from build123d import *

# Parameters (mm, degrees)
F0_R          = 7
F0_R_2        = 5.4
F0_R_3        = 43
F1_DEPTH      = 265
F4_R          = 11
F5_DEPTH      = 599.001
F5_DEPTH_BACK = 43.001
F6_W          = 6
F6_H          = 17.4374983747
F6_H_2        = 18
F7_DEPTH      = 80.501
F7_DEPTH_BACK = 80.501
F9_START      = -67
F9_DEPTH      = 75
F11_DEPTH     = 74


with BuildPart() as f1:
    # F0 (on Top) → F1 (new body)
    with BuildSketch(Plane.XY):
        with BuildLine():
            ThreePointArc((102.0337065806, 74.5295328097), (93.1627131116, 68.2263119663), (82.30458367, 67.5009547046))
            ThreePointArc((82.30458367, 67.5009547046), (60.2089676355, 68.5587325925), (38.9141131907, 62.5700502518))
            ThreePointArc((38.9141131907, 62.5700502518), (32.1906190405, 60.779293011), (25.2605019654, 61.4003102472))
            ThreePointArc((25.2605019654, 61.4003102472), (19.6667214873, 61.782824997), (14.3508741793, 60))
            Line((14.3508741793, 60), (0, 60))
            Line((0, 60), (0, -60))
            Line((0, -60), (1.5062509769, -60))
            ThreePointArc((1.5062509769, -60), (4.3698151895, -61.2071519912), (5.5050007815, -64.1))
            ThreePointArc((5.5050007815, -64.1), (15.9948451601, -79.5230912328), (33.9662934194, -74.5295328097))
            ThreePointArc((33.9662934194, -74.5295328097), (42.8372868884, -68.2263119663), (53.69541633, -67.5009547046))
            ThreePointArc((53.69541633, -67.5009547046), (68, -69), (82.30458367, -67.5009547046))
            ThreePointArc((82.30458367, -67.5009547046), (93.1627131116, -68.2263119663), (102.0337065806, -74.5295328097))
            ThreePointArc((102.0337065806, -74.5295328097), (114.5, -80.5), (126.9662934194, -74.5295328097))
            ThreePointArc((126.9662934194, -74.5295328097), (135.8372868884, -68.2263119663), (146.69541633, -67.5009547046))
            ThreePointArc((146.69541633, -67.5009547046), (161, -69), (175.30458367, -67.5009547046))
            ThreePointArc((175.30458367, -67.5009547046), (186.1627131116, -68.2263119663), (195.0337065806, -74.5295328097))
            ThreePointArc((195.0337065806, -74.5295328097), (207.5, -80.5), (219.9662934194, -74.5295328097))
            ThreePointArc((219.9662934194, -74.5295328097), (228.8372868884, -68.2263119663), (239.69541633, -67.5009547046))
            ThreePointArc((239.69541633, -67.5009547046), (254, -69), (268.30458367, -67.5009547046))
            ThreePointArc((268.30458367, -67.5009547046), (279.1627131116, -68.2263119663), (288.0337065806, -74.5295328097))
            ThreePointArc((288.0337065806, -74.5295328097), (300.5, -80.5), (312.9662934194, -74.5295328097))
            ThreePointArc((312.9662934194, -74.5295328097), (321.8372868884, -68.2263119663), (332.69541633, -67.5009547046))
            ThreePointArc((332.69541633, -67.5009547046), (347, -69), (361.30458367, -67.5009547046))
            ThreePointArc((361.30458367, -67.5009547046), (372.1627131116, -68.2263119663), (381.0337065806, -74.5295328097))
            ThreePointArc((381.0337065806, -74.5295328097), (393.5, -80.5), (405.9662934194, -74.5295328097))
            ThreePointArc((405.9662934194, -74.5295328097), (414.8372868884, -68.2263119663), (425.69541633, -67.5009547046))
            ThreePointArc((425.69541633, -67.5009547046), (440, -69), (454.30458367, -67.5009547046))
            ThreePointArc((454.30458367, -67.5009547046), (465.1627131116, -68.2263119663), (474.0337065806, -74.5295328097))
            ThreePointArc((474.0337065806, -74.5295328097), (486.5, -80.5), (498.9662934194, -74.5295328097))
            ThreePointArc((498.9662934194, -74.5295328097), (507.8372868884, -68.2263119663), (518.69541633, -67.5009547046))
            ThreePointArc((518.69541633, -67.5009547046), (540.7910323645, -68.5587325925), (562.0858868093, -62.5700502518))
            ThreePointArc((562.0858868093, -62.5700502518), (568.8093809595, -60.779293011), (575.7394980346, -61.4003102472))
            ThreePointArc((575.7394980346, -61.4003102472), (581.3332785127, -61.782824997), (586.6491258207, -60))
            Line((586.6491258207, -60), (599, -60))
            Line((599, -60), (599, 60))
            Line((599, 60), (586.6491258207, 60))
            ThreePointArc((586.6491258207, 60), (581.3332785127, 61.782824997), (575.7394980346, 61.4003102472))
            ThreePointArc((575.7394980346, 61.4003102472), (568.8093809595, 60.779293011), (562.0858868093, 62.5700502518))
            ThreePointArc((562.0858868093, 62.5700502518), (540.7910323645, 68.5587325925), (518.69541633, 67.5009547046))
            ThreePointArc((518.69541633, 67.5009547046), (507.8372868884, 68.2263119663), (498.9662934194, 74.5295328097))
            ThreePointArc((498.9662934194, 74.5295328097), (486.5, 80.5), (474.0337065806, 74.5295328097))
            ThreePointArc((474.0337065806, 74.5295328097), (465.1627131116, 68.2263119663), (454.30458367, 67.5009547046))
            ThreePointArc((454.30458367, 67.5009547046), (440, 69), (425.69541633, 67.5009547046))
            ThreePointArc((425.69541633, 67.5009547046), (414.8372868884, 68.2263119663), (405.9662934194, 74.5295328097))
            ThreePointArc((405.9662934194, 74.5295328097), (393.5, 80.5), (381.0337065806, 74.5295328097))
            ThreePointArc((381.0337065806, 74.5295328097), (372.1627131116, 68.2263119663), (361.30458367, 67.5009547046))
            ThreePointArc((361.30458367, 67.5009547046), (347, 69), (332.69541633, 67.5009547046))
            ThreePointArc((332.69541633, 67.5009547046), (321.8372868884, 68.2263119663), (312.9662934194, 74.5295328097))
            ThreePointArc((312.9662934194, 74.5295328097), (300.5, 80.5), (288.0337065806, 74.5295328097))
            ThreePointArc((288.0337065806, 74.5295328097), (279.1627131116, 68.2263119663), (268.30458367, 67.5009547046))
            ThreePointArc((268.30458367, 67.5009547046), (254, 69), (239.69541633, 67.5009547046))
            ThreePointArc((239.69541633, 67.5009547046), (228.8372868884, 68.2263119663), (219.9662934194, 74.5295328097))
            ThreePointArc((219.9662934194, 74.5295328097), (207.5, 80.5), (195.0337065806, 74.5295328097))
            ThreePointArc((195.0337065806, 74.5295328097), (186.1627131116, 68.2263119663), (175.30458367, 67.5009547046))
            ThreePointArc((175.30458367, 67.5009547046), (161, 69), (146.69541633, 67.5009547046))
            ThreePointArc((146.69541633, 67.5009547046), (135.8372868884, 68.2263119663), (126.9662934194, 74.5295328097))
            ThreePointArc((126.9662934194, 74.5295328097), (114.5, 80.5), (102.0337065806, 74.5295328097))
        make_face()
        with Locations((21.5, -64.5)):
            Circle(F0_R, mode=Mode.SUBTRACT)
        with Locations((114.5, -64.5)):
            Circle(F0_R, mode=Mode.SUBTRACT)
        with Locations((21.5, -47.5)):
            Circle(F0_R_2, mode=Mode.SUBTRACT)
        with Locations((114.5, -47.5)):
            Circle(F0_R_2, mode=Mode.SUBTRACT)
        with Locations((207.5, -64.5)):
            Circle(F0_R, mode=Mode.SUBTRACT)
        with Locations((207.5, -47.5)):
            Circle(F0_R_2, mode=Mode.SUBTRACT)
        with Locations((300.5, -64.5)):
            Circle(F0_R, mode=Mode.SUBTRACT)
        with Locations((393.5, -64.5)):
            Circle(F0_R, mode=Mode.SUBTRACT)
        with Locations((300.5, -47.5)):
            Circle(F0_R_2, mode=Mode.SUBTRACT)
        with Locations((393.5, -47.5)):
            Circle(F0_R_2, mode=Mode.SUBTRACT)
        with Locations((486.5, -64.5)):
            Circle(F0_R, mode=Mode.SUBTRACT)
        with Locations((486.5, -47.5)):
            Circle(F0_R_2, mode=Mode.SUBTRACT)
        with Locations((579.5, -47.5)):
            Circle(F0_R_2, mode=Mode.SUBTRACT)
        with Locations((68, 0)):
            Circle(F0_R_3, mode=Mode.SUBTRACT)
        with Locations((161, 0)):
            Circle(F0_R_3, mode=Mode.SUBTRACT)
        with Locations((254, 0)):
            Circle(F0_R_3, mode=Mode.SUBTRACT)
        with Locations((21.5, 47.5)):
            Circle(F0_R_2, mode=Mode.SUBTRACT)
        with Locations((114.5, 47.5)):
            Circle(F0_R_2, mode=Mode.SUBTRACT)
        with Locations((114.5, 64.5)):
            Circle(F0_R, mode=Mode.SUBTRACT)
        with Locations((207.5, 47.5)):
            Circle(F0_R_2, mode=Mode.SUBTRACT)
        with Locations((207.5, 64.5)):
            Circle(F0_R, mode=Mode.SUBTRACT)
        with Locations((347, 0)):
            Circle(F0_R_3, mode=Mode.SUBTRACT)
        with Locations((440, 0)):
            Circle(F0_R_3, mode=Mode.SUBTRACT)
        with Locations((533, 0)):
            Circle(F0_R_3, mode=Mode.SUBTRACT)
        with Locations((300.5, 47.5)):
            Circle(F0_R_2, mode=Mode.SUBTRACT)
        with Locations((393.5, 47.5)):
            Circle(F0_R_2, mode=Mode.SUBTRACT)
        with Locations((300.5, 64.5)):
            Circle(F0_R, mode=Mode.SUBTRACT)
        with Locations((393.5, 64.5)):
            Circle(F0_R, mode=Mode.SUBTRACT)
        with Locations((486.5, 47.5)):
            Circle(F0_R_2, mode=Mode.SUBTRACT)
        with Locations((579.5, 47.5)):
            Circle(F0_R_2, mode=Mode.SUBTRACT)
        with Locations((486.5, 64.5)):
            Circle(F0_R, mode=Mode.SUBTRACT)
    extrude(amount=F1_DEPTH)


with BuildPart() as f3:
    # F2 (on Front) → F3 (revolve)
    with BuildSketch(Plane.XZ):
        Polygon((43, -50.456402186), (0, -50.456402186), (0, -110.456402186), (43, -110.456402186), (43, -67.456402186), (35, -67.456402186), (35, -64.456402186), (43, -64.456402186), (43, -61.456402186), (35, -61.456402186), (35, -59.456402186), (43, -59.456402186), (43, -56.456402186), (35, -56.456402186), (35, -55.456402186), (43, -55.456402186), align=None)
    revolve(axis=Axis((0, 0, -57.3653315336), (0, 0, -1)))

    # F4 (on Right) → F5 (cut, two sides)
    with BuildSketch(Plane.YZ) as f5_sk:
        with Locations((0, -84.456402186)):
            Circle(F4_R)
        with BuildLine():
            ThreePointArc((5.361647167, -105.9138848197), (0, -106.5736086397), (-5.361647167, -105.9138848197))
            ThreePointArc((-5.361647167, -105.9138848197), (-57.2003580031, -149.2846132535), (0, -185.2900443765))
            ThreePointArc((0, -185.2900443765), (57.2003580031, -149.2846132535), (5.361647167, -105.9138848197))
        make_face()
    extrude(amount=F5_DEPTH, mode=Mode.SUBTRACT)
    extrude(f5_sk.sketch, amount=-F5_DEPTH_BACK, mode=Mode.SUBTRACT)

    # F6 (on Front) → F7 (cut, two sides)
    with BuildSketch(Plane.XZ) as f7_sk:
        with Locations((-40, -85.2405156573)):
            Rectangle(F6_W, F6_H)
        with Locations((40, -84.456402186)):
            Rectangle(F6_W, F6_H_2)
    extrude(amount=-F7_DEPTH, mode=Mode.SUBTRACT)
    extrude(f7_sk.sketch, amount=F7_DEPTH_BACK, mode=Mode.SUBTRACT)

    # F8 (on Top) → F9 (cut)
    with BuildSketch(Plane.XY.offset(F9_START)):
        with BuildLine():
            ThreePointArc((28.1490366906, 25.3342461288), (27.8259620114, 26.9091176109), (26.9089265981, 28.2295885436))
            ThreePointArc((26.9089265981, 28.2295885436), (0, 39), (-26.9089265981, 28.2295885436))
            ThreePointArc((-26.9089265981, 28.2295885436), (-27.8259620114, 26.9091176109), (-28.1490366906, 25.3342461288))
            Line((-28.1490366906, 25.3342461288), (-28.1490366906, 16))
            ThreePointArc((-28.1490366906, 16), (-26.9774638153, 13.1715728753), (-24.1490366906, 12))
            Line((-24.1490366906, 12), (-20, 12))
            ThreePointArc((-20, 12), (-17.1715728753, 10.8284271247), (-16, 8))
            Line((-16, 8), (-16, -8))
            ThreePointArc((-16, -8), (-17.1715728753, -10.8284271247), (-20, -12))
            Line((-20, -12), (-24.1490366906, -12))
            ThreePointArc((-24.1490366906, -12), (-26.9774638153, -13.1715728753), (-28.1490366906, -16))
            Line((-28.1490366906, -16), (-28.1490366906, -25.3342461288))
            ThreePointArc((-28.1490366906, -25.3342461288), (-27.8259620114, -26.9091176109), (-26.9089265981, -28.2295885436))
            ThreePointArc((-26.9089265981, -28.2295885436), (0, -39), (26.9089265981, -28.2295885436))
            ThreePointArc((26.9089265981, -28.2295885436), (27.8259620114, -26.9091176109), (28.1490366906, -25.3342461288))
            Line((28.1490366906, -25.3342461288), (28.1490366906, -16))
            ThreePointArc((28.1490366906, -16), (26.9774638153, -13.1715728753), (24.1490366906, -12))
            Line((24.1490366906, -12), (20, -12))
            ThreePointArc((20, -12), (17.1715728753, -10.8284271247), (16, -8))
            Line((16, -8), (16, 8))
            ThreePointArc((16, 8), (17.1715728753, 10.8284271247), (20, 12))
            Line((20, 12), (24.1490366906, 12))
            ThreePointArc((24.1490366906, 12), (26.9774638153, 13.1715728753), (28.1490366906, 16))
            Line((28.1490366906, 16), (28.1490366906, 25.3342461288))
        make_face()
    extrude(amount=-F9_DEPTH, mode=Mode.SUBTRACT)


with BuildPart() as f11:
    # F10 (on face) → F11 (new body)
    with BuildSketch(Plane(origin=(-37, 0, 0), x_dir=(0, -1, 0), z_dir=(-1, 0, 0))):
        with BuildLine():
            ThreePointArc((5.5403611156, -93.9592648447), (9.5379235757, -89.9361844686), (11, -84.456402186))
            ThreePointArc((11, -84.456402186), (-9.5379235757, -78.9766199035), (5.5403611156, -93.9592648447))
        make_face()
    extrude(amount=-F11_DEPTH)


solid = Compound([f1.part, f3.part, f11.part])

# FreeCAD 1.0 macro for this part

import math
import FreeCAD as App
import Part
import Sketcher
from FreeCAD import Vector
Q = App.Units.Quantity


def add_polygon(sketch, points):
    """Adds a closed chain of lines whose ends are joined by coincident constraints."""
    first, n = sketch.GeometryCount, len(points)
    for a, b in zip(points, points[1:] + points[:1]):
        sketch.addGeometry(Part.LineSegment(App.Vector(*a, 0), App.Vector(*b, 0)), False)
    for i in range(n):
        sketch.addConstraint(Sketcher.Constraint("Coincident", first + i, 2, first + (i + 1) % n, 1))

doc = App.newDocument("Part")
body = doc.addObject("PartDesign::Body", "Body")

# Sketch on XY plane
sketch1 = body.newObject("Sketcher::SketchObject", "Sketch")
sketch1.AttachmentSupport = (doc.getObject("XY_Plane"), [""])
sketch1.MapMode = "FlatFace"
sketch1.addGeometry([
    Part.ArcOfCircle(Part.Circle(Vector(86.5, 87.1, 0), Vector(0, 0, 1), 20), math.radians(-102), math.radians(-39)),  # 0
    Part.ArcOfCircle(Part.Circle(Vector(68, 0, 0), Vector(0, 0, 1), 69), math.radians(78), math.radians(115)),  # 1
    Part.ArcOfCircle(Part.Circle(Vector(30.5, 80.7, 0), Vector(0, 0, 1), 20), math.radians(-105), math.radians(-65)),  # 2
    Part.ArcOfCircle(Part.Circle(Vector(21.5, 47.5, 0), Vector(0, 0, 1), 14.4), math.radians(75), math.radians(120)),  # 3
    Part.LineSegment(Vector(14.4, 60, 0), Vector(0, 60, 0)),  # 4
    Part.LineSegment(Vector(0, 60, 0), Vector(0, -60, 0)),  # 5
    Part.LineSegment(Vector(0, -60, 0), Vector(1.5, -60, 0)),  # 6
    Part.ArcOfCircle(Part.Circle(Vector(1.5, -64, 0), Vector(0, 0, 1), 4), math.radians(-1), math.radians(90)),  # 7
    Part.ArcOfCircle(Part.Circle(Vector(21.5, -64.5, 0), Vector(0, 0, 1), 16), math.radians(179), math.radians(321)),  # 8
    Part.ArcOfCircle(Part.Circle(Vector(49.5, -87.1, 0), Vector(0, 0, 1), 20), math.radians(78), math.radians(141)),  # 9
    Part.ArcOfCircle(Part.Circle(Vector(68, 0, 0), Vector(0, 0, 1), 69), math.radians(-102), math.radians(-78)),  # 10
    Part.ArcOfCircle(Part.Circle(Vector(86.5, -87.1, 0), Vector(0, 0, 1), 20), math.radians(39), math.radians(102)),  # 11
    Part.ArcOfCircle(Part.Circle(Vector(114.5, -64.5, 0), Vector(0, 0, 1), 16), math.radians(-141), math.radians(-39)),  # 12
    Part.ArcOfCircle(Part.Circle(Vector(142.5, -87.1, 0), Vector(0, 0, 1), 20), math.radians(78), math.radians(141)),  # 13
    Part.ArcOfCircle(Part.Circle(Vector(161, 0, 0), Vector(0, 0, 1), 69), math.radians(-102), math.radians(-78)),  # 14
    Part.ArcOfCircle(Part.Circle(Vector(179.5, -87.1, 0), Vector(0, 0, 1), 20), math.radians(39), math.radians(102)),  # 15
    Part.ArcOfCircle(Part.Circle(Vector(207.5, -64.5, 0), Vector(0, 0, 1), 16), math.radians(-141), math.radians(-39)),  # 16
    Part.ArcOfCircle(Part.Circle(Vector(235.5, -87.1, 0), Vector(0, 0, 1), 20), math.radians(78), math.radians(141)),  # 17
    Part.ArcOfCircle(Part.Circle(Vector(254, 0, 0), Vector(0, 0, 1), 69), math.radians(-102), math.radians(-78)),  # 18
    Part.ArcOfCircle(Part.Circle(Vector(272.5, -87.1, 0), Vector(0, 0, 1), 20), math.radians(39), math.radians(102)),  # 19
    Part.ArcOfCircle(Part.Circle(Vector(300.5, -64.5, 0), Vector(0, 0, 1), 16), math.radians(-141), math.radians(-39)),  # 20
    Part.ArcOfCircle(Part.Circle(Vector(328.5, -87.1, 0), Vector(0, 0, 1), 20), math.radians(78), math.radians(141)),  # 21
    Part.ArcOfCircle(Part.Circle(Vector(347, 0, 0), Vector(0, 0, 1), 69), math.radians(-102), math.radians(-78)),  # 22
    Part.ArcOfCircle(Part.Circle(Vector(365.5, -87.1, 0), Vector(0, 0, 1), 20), math.radians(39), math.radians(102)),  # 23
    Part.ArcOfCircle(Part.Circle(Vector(393.5, -64.5, 0), Vector(0, 0, 1), 16), math.radians(-141), math.radians(-39)),  # 24
    Part.ArcOfCircle(Part.Circle(Vector(421.5, -87.1, 0), Vector(0, 0, 1), 20), math.radians(78), math.radians(141)),  # 25
    Part.ArcOfCircle(Part.Circle(Vector(440, 0, 0), Vector(0, 0, 1), 69), math.radians(-102), math.radians(-78)),  # 26
    Part.ArcOfCircle(Part.Circle(Vector(458.5, -87.1, 0), Vector(0, 0, 1), 20), math.radians(39), math.radians(102)),  # 27
    Part.ArcOfCircle(Part.Circle(Vector(486.5, -64.5, 0), Vector(0, 0, 1), 16), math.radians(-141), math.radians(-39)),  # 28
    Part.ArcOfCircle(Part.Circle(Vector(514.5, -87.1, 0), Vector(0, 0, 1), 20), math.radians(78), math.radians(141)),  # 29
    Part.ArcOfCircle(Part.Circle(Vector(533, 0, 0), Vector(0, 0, 1), 69), math.radians(-102), math.radians(-65)),  # 30
    Part.ArcOfCircle(Part.Circle(Vector(570.5, -80.7, 0), Vector(0, 0, 1), 20), math.radians(75), math.radians(115)),  # 31
    Part.ArcOfCircle(Part.Circle(Vector(579.5, -47.5, 0), Vector(0, 0, 1), 14.4), math.radians(-105), math.radians(-60)),  # 32
    Part.LineSegment(Vector(586.6, -60, 0), Vector(599, -60, 0)),  # 33
    Part.LineSegment(Vector(599, -60, 0), Vector(599, 60, 0)),  # 34
    Part.LineSegment(Vector(599, 60, 0), Vector(586.6, 60, 0)),  # 35
    Part.ArcOfCircle(Part.Circle(Vector(579.5, 47.5, 0), Vector(0, 0, 1), 14.4), math.radians(60), math.radians(105)),  # 36
    Part.ArcOfCircle(Part.Circle(Vector(570.5, 80.7, 0), Vector(0, 0, 1), 20), math.radians(-115), math.radians(-75)),  # 37
    Part.ArcOfCircle(Part.Circle(Vector(533, 0, 0), Vector(0, 0, 1), 69), math.radians(65), math.radians(102)),  # 38
    Part.ArcOfCircle(Part.Circle(Vector(514.5, 87.1, 0), Vector(0, 0, 1), 20), math.radians(-141), math.radians(-78)),  # 39
    Part.ArcOfCircle(Part.Circle(Vector(486.5, 64.5, 0), Vector(0, 0, 1), 16), math.radians(39), math.radians(141)),  # 40
    Part.ArcOfCircle(Part.Circle(Vector(458.5, 87.1, 0), Vector(0, 0, 1), 20), math.radians(-102), math.radians(-39)),  # 41
    Part.ArcOfCircle(Part.Circle(Vector(440, 0, 0), Vector(0, 0, 1), 69), math.radians(78), math.radians(102)),  # 42
    Part.ArcOfCircle(Part.Circle(Vector(421.5, 87.1, 0), Vector(0, 0, 1), 20), math.radians(-141), math.radians(-78)),  # 43
    Part.ArcOfCircle(Part.Circle(Vector(393.5, 64.5, 0), Vector(0, 0, 1), 16), math.radians(39), math.radians(141)),  # 44
    Part.ArcOfCircle(Part.Circle(Vector(365.5, 87.1, 0), Vector(0, 0, 1), 20), math.radians(-102), math.radians(-39)),  # 45
    Part.ArcOfCircle(Part.Circle(Vector(347, 0, 0), Vector(0, 0, 1), 69), math.radians(78), math.radians(102)),  # 46
    Part.ArcOfCircle(Part.Circle(Vector(328.5, 87.1, 0), Vector(0, 0, 1), 20), math.radians(-141), math.radians(-78)),  # 47
    Part.ArcOfCircle(Part.Circle(Vector(300.5, 64.5, 0), Vector(0, 0, 1), 16), math.radians(39), math.radians(141)),  # 48
    Part.ArcOfCircle(Part.Circle(Vector(272.5, 87.1, 0), Vector(0, 0, 1), 20), math.radians(-102), math.radians(-39)),  # 49
    Part.ArcOfCircle(Part.Circle(Vector(254, 0, 0), Vector(0, 0, 1), 69), math.radians(78), math.radians(102)),  # 50
    Part.ArcOfCircle(Part.Circle(Vector(235.5, 87.1, 0), Vector(0, 0, 1), 20), math.radians(-141), math.radians(-78)),  # 51
    Part.ArcOfCircle(Part.Circle(Vector(207.5, 64.5, 0), Vector(0, 0, 1), 16), math.radians(39), math.radians(141)),  # 52
    Part.ArcOfCircle(Part.Circle(Vector(179.5, 87.1, 0), Vector(0, 0, 1), 20), math.radians(-102), math.radians(-39)),  # 53
    Part.ArcOfCircle(Part.Circle(Vector(161, 0, 0), Vector(0, 0, 1), 69), math.radians(78), math.radians(102)),  # 54
    Part.ArcOfCircle(Part.Circle(Vector(142.5, 87.1, 0), Vector(0, 0, 1), 20), math.radians(-141), math.radians(-78)),  # 55
    Part.ArcOfCircle(Part.Circle(Vector(114.5, 64.5, 0), Vector(0, 0, 1), 16), math.radians(39), math.radians(141)),  # 56
    Part.Circle(Vector(21.5, -64.5, 0), Vector(0, 0, 1), 7),  # 57
    Part.Circle(Vector(114.5, -64.5, 0), Vector(0, 0, 1), 7),  # 58
    Part.Circle(Vector(21.5, -47.5, 0), Vector(0, 0, 1), 5.4),  # 59
    Part.Circle(Vector(114.5, -47.5, 0), Vector(0, 0, 1), 5.4),  # 60
    Part.Circle(Vector(207.5, -64.5, 0), Vector(0, 0, 1), 7),  # 61
    Part.Circle(Vector(207.5, -47.5, 0), Vector(0, 0, 1), 5.4),  # 62
    Part.Circle(Vector(300.5, -64.5, 0), Vector(0, 0, 1), 7),  # 63
    Part.Circle(Vector(393.5, -64.5, 0), Vector(0, 0, 1), 7),  # 64
    Part.Circle(Vector(300.5, -47.5, 0), Vector(0, 0, 1), 5.4),  # 65
    Part.Circle(Vector(393.5, -47.5, 0), Vector(0, 0, 1), 5.4),  # 66
    Part.Circle(Vector(486.5, -64.5, 0), Vector(0, 0, 1), 7),  # 67
    Part.Circle(Vector(486.5, -47.5, 0), Vector(0, 0, 1), 5.4),  # 68
    Part.Circle(Vector(579.5, -47.5, 0), Vector(0, 0, 1), 5.4),  # 69
    Part.Circle(Vector(68, 0, 0), Vector(0, 0, 1), 43),  # 70
    Part.Circle(Vector(161, 0, 0), Vector(0, 0, 1), 43),  # 71
    Part.Circle(Vector(254, 0, 0), Vector(0, 0, 1), 43),  # 72
    Part.Circle(Vector(21.5, 47.5, 0), Vector(0, 0, 1), 5.4),  # 73
    Part.Circle(Vector(114.5, 47.5, 0), Vector(0, 0, 1), 5.4),  # 74
    Part.Circle(Vector(114.5, 64.5, 0), Vector(0, 0, 1), 7),  # 75
    Part.Circle(Vector(207.5, 47.5, 0), Vector(0, 0, 1), 5.4),  # 76
    Part.Circle(Vector(207.5, 64.5, 0), Vector(0, 0, 1), 7),  # 77
    Part.Circle(Vector(347, 0, 0), Vector(0, 0, 1), 43),  # 78
    Part.Circle(Vector(440, 0, 0), Vector(0, 0, 1), 43),  # 79
    Part.Circle(Vector(533, 0, 0), Vector(0, 0, 1), 43),  # 80
    Part.Circle(Vector(300.5, 47.5, 0), Vector(0, 0, 1), 5.4),  # 81
    Part.Circle(Vector(393.5, 47.5, 0), Vector(0, 0, 1), 5.4),  # 82
    Part.Circle(Vector(300.5, 64.5, 0), Vector(0, 0, 1), 7),  # 83
    Part.Circle(Vector(393.5, 64.5, 0), Vector(0, 0, 1), 7),  # 84
    Part.Circle(Vector(486.5, 47.5, 0), Vector(0, 0, 1), 5.4),  # 85
    Part.Circle(Vector(579.5, 47.5, 0), Vector(0, 0, 1), 5.4),  # 86
    Part.Circle(Vector(486.5, 64.5, 0), Vector(0, 0, 1), 7),  # 87
], False)
sketch1.addConstraint([
    Sketcher.Constraint("Tangent", 0, 1, 1, 1),
    Sketcher.Constraint("Tangent", 1, 2, 2, 2),
    Sketcher.Constraint("Tangent", 2, 1, 3, 1),
    Sketcher.Constraint("Coincident", 3, 2, 4, 1),
    Sketcher.Constraint("Coincident", 4, 2, 5, 1),
    Sketcher.Constraint("Coincident", 5, 2, 6, 1),
    Sketcher.Constraint("Tangent", 6, 2, 7, 2),
    Sketcher.Constraint("Tangent", 7, 1, 8, 1),
    Sketcher.Constraint("Tangent", 8, 2, 9, 2),
    Sketcher.Constraint("Tangent", 9, 1, 10, 1),
    Sketcher.Constraint("Tangent", 10, 2, 11, 2),
    Sketcher.Constraint("Tangent", 11, 1, 12, 1),
    Sketcher.Constraint("Tangent", 12, 2, 13, 2),
    Sketcher.Constraint("Tangent", 13, 1, 14, 1),
    Sketcher.Constraint("Tangent", 14, 2, 15, 2),
    Sketcher.Constraint("Tangent", 15, 1, 16, 1),
    Sketcher.Constraint("Tangent", 16, 2, 17, 2),
    Sketcher.Constraint("Tangent", 17, 1, 18, 1),
    Sketcher.Constraint("Tangent", 18, 2, 19, 2),
    Sketcher.Constraint("Tangent", 19, 1, 20, 1),
    Sketcher.Constraint("Tangent", 20, 2, 21, 2),
    Sketcher.Constraint("Tangent", 21, 1, 22, 1),
    Sketcher.Constraint("Tangent", 22, 2, 23, 2),
    Sketcher.Constraint("Tangent", 23, 1, 24, 1),
    Sketcher.Constraint("Tangent", 24, 2, 25, 2),
    Sketcher.Constraint("Tangent", 25, 1, 26, 1),
    Sketcher.Constraint("Tangent", 26, 2, 27, 2),
    Sketcher.Constraint("Tangent", 27, 1, 28, 1),
    Sketcher.Constraint("Tangent", 28, 2, 29, 2),
    Sketcher.Constraint("Tangent", 29, 1, 30, 1),
    Sketcher.Constraint("Tangent", 30, 2, 31, 2),
    Sketcher.Constraint("Tangent", 31, 1, 32, 1),
    Sketcher.Constraint("Coincident", 32, 2, 33, 1),
    Sketcher.Constraint("Coincident", 33, 2, 34, 1),
    Sketcher.Constraint("Coincident", 34, 2, 35, 1),
    Sketcher.Constraint("Coincident", 35, 2, 36, 1),
    Sketcher.Constraint("Tangent", 36, 2, 37, 2),
    Sketcher.Constraint("Tangent", 37, 1, 38, 1),
    Sketcher.Constraint("Tangent", 38, 2, 39, 2),
    Sketcher.Constraint("Tangent", 39, 1, 40, 1),
    Sketcher.Constraint("Tangent", 40, 2, 41, 2),
    Sketcher.Constraint("Tangent", 41, 1, 42, 1),
    Sketcher.Constraint("Tangent", 42, 2, 43, 2),
    Sketcher.Constraint("Tangent", 43, 1, 44, 1),
    Sketcher.Constraint("Tangent", 44, 2, 45, 2),
    Sketcher.Constraint("Tangent", 45, 1, 46, 1),
    Sketcher.Constraint("Tangent", 46, 2, 47, 2),
    Sketcher.Constraint("Tangent", 47, 1, 48, 1),
    Sketcher.Constraint("Tangent", 48, 2, 49, 2),
    Sketcher.Constraint("Tangent", 49, 1, 50, 1),
    Sketcher.Constraint("Tangent", 50, 2, 51, 2),
    Sketcher.Constraint("Tangent", 51, 1, 52, 1),
    Sketcher.Constraint("Tangent", 52, 2, 53, 2),
    Sketcher.Constraint("Tangent", 53, 1, 54, 1),
    Sketcher.Constraint("Tangent", 54, 2, 55, 2),
    Sketcher.Constraint("Tangent", 55, 1, 56, 1),
    Sketcher.Constraint("Tangent", 56, 2, 0, 2),
    Sketcher.Constraint("Horizontal", 4),
    Sketcher.Constraint("Vertical", 5),
    Sketcher.Constraint("Horizontal", 6),
    Sketcher.Constraint("Horizontal", 33),
    Sketcher.Constraint("Vertical", 34),
    Sketcher.Constraint("Horizontal", 35),
    Sketcher.Constraint("Coincident", 10, 3, 1, 3),
    Sketcher.Constraint("Coincident", 38, 3, 30, 3),
    Sketcher.Constraint("Coincident", 42, 3, 26, 3),
    Sketcher.Constraint("Coincident", 46, 3, 22, 3),
    Sketcher.Constraint("Coincident", 50, 3, 18, 3),
    Sketcher.Constraint("Coincident", 54, 3, 14, 3),
    Sketcher.Constraint("Coincident", 57, 3, 8, 3),
    Sketcher.Constraint("Coincident", 58, 3, 12, 3),
    Sketcher.Constraint("Coincident", 61, 3, 16, 3),
    Sketcher.Constraint("Coincident", 63, 3, 20, 3),
    Sketcher.Constraint("Coincident", 64, 3, 24, 3),
    Sketcher.Constraint("Coincident", 67, 3, 28, 3),
    Sketcher.Constraint("Coincident", 69, 3, 32, 3),
    Sketcher.Constraint("Coincident", 70, 3, 1, 3),
    Sketcher.Constraint("Coincident", 71, 3, 14, 3),
    Sketcher.Constraint("Coincident", 72, 3, 18, 3),
    Sketcher.Constraint("Coincident", 73, 3, 3, 3),
    Sketcher.Constraint("Coincident", 75, 3, 56, 3),
    Sketcher.Constraint("Coincident", 77, 3, 52, 3),
    Sketcher.Constraint("Coincident", 78, 3, 22, 3),
    Sketcher.Constraint("Coincident", 79, 3, 26, 3),
    Sketcher.Constraint("Coincident", 80, 3, 30, 3),
    Sketcher.Constraint("Coincident", 83, 3, 48, 3),
    Sketcher.Constraint("Coincident", 84, 3, 44, 3),
    Sketcher.Constraint("Coincident", 86, 3, 36, 3),
    Sketcher.Constraint("Coincident", 87, 3, 40, 3),
    Sketcher.Constraint("Equal", 0, 2),
    Sketcher.Constraint("Equal", 2, 9),
    Sketcher.Constraint("Equal", 1, 10),
    Sketcher.Constraint("Equal", 9, 11),
    Sketcher.Constraint("Equal", 8, 12),
    Sketcher.Constraint("Equal", 11, 13),
    Sketcher.Constraint("Equal", 10, 14),
    Sketcher.Constraint("Equal", 13, 15),
    Sketcher.Constraint("Equal", 12, 16),
    Sketcher.Constraint("Equal", 15, 17),
    Sketcher.Constraint("Equal", 14, 18),
    Sketcher.Constraint("Equal", 17, 19),
    Sketcher.Constraint("Equal", 16, 20),
    Sketcher.Constraint("Equal", 19, 21),
    Sketcher.Constraint("Equal", 18, 22),
    Sketcher.Constraint("Equal", 21, 23),
    Sketcher.Constraint("Equal", 20, 24),
    Sketcher.Constraint("Equal", 23, 25),
    Sketcher.Constraint("Equal", 22, 26),
    Sketcher.Constraint("Equal", 25, 27),
    Sketcher.Constraint("Equal", 24, 28),
    Sketcher.Constraint("Equal", 27, 29),
    Sketcher.Constraint("Equal", 26, 30),
    Sketcher.Constraint("Equal", 29, 31),
    Sketcher.Constraint("Equal", 3, 32),
    Sketcher.Constraint("Equal", 32, 36),
    Sketcher.Constraint("Equal", 31, 37),
    Sketcher.Constraint("Equal", 30, 38),
    Sketcher.Constraint("Equal", 37, 39),
    Sketcher.Constraint("Equal", 28, 40),
    Sketcher.Constraint("Equal", 39, 41),
    Sketcher.Constraint("Equal", 38, 42),
    Sketcher.Constraint("Equal", 41, 43),
    Sketcher.Constraint("Equal", 40, 44),
    Sketcher.Constraint("Equal", 43, 45),
    Sketcher.Constraint("Equal", 42, 46),
    Sketcher.Constraint("Equal", 45, 47),
    Sketcher.Constraint("Equal", 44, 48),
    Sketcher.Constraint("Equal", 47, 49),
    Sketcher.Constraint("Equal", 46, 50),
    Sketcher.Constraint("Equal", 49, 51),
    Sketcher.Constraint("Equal", 48, 52),
    Sketcher.Constraint("Equal", 51, 53),
    Sketcher.Constraint("Equal", 50, 54),
    Sketcher.Constraint("Equal", 53, 55),
    Sketcher.Constraint("Equal", 52, 56),
    Sketcher.Constraint("Equal", 57, 58),
    Sketcher.Constraint("Equal", 59, 60),
    Sketcher.Constraint("Equal", 58, 61),
    Sketcher.Constraint("Equal", 60, 62),
    Sketcher.Constraint("Equal", 61, 63),
    Sketcher.Constraint("Equal", 63, 64),
    Sketcher.Constraint("Equal", 62, 65),
    Sketcher.Constraint("Equal", 65, 66),
    Sketcher.Constraint("Equal", 64, 67),
    Sketcher.Constraint("Equal", 66, 68),
    Sketcher.Constraint("Equal", 68, 69),
    Sketcher.Constraint("Equal", 70, 71),
    Sketcher.Constraint("Equal", 71, 72),
    Sketcher.Constraint("Equal", 69, 73),
    Sketcher.Constraint("Equal", 73, 74),
    Sketcher.Constraint("Equal", 67, 75),
    Sketcher.Constraint("Equal", 74, 76),
    Sketcher.Constraint("Equal", 75, 77),
    Sketcher.Constraint("Equal", 72, 78),
    Sketcher.Constraint("Equal", 78, 79),
    Sketcher.Constraint("Equal", 79, 80),
    Sketcher.Constraint("Equal", 76, 81),
    Sketcher.Constraint("Equal", 81, 82),
    Sketcher.Constraint("Equal", 77, 83),
    Sketcher.Constraint("Equal", 83, 84),
    Sketcher.Constraint("Equal", 82, 85),
    Sketcher.Constraint("Equal", 85, 86),
    Sketcher.Constraint("Equal", 84, 87),
    Sketcher.Constraint("Symmetric", 4, 2, 5, 2, -1, 1),
    Sketcher.Constraint("Symmetric", 0, 3, 11, 3, -1),
    Sketcher.Constraint("Symmetric", 32, 3, 36, 3, -1),
    Sketcher.Constraint("Symmetric", 29, 3, 39, 3, -1),
    Sketcher.Constraint("Symmetric", 27, 3, 41, 3, -1),
    Sketcher.Constraint("Symmetric", 24, 3, 44, 3, -1),
    Sketcher.Constraint("Symmetric", 21, 3, 47, 3, -1),
    Sketcher.Constraint("Symmetric", 19, 3, 49, 3, -1),
    Sketcher.Constraint("Symmetric", 16, 3, 52, 3, -1),
    Sketcher.Constraint("Symmetric", 13, 3, 55, 3, -1),
    Sketcher.Constraint("Symmetric", 3, 3, 59, 3, -1),
    Sketcher.Constraint("Symmetric", 60, 3, 74, 3, -1),
    Sketcher.Constraint("Symmetric", 62, 3, 76, 3, -1),
    Sketcher.Constraint("Symmetric", 65, 3, 81, 3, -1),
    Sketcher.Constraint("Symmetric", 66, 3, 82, 3, -1),
    Sketcher.Constraint("Symmetric", 68, 3, 85, 3, -1),
    Sketcher.Constraint("Horizontal", 9, 3, 11, 3),
    Sketcher.Constraint("Horizontal", 8, 3, 12, 3),
    Sketcher.Constraint("Horizontal", 11, 3, 13, 3),
    Sketcher.Constraint("Horizontal", 13, 3, 15, 3),
    Sketcher.Constraint("Horizontal", 12, 3, 16, 3),
    Sketcher.Constraint("Horizontal", 15, 3, 17, 3),
    Sketcher.Constraint("Horizontal", 17, 3, 19, 3),
    Sketcher.Constraint("Horizontal", 16, 3, 20, 3),
    Sketcher.Constraint("Horizontal", 19, 3, 21, 3),
    Sketcher.Constraint("Horizontal", 21, 3, 23, 3),
    Sketcher.Constraint("Horizontal", 20, 3, 24, 3),
    Sketcher.Constraint("Horizontal", 23, 3, 25, 3),
    Sketcher.Constraint("Horizontal", 25, 3, 27, 3),
    Sketcher.Constraint("Horizontal", 24, 3, 28, 3),
    Sketcher.Constraint("Horizontal", 27, 3, 29, 3),
    Sketcher.Constraint("Horizontal", 3, 3, 36, 3),
    Sketcher.Constraint("Horizontal", 2, 3, 37, 3),
    Sketcher.Constraint("Horizontal", 59, 3, 60, 3),
    Sketcher.Constraint("Horizontal", 60, 3, 62, 3),
    Sketcher.Constraint("Horizontal", 62, 3, 65, 3),
    Sketcher.Constraint("Horizontal", 65, 3, 66, 3),
    Sketcher.Constraint("Horizontal", 66, 3, 68, 3),
    Sketcher.Constraint("Horizontal", 6, 2, 32, 2),
    Sketcher.Constraint("Horizontal", 4, 2, 34, 2),
    Sketcher.Constraint("Vertical", 3, 3, 8, 3),
    Sketcher.Constraint("Vertical", 58, 3, 60, 3),
    Sketcher.Constraint("Vertical", 61, 3, 62, 3),
    Sketcher.Constraint("Vertical", 63, 3, 65, 3),
    Sketcher.Constraint("Vertical", 64, 3, 66, 3),
    Sketcher.Constraint("Vertical", 67, 3, 68, 3),
    Sketcher.Constraint("Diameter", 57, Q("14 mm")),
    Sketcher.Constraint("Diameter", 70, Q("86 mm")),
    Sketcher.Constraint("Radius", 0, Q("20 mm")),
    Sketcher.Constraint("Radius", 1, Q("69 mm")),
    Sketcher.Constraint("Radius", 7, Q("4 mm")),
    Sketcher.Constraint("Radius", 8, Q("16 mm")),
    Sketcher.Constraint("Diameter", 59, Q("10.8 mm")),
    Sketcher.Constraint("Radius", 3, Q("14.4 mm")),
    Sketcher.Constraint("DistanceY", 5, 2, 5, 1, Q("120 mm")),
    Sketcher.Constraint("DistanceX", -1, 1, 1, 3, Q("68 mm")),
    Sketcher.Constraint("DistanceX", -1, 1, 14, 3, Q("161 mm")),
    Sketcher.Constraint("DistanceX", -1, 1, 33, 2, Q("599 mm")),
    Sketcher.Constraint("DistanceY", -1, 1, 3, 3, Q("47.5 mm")),
    Sketcher.Constraint("DistanceY", 8, 3, -1, 1, Q("64.5 mm")),
])
pad1 = body.newObject("PartDesign::Pad", "Pad")
pad1.Profile = sketch1
pad1.Length = 265
body2 = doc.addObject("PartDesign::Body", "Body001")

# Sketch on XZ plane
sketch2 = body2.newObject("Sketcher::SketchObject", "Sketch001")
sketch2.AttachmentSupport = (doc.getObject("XZ_Plane001"), [""])
sketch2.MapMode = "FlatFace"
add_polygon(sketch2, [(43, -50.5), (0, -50.5), (0, -110.5), (43, -110.5), (43, -67.5), (35, -67.5), (35, -64.5), (43, -64.5), (43, -61.5), (35, -61.5), (35, -59.5), (43, -59.5), (43, -56.5), (35, -56.5), (35, -55.5), (43, -55.5)])  # lines 0-15
sketch2.addConstraint([
    Sketcher.Constraint("Horizontal", 0),
    Sketcher.Constraint("Vertical", 1),
    Sketcher.Constraint("Horizontal", 2),
    Sketcher.Constraint("Vertical", 3),
    Sketcher.Constraint("Horizontal", 4),
    Sketcher.Constraint("Vertical", 5),
    Sketcher.Constraint("Horizontal", 6),
    Sketcher.Constraint("Vertical", 7),
    Sketcher.Constraint("Horizontal", 8),
    Sketcher.Constraint("Vertical", 9),
    Sketcher.Constraint("Horizontal", 10),
    Sketcher.Constraint("Vertical", 11),
    Sketcher.Constraint("Horizontal", 12),
    Sketcher.Constraint("Vertical", 13),
    Sketcher.Constraint("Horizontal", 14),
    Sketcher.Constraint("Vertical", 15),
    Sketcher.Constraint("PointOnObject", 0, 2, -2),
    Sketcher.Constraint("Vertical", 3, 2, 6, 2),
    Sketcher.Constraint("Vertical", 5, 2, 8, 2),
    Sketcher.Constraint("Vertical", 7, 2, 10, 2),
    Sketcher.Constraint("Vertical", 9, 2, 12, 2),
    Sketcher.Constraint("Vertical", 11, 2, 14, 2),
    Sketcher.Constraint("Equal", 2, 3),
    Sketcher.Constraint("Equal", 5, 7),
    Sketcher.Constraint("Equal", 7, 11),
    Sketcher.Constraint("DistanceX", 0, 2, 0, 1, Q("43 mm")),
    Sketcher.Constraint("DistanceX", 4, 2, 4, 1, Q("8 mm")),
    Sketcher.Constraint("DistanceY", 1, 2, 1, 1, Q("60 mm")),
    Sketcher.Constraint("DistanceY", 5, 1, 5, 2, Q("3 mm")),
    Sketcher.Constraint("DistanceY", 9, 1, 9, 2, Q("2 mm")),
    Sketcher.Constraint("DistanceY", 13, 1, 13, 2, Q("1 mm")),
    Sketcher.Constraint("DistanceY", 0, 2, -1, 1, Q("50.456402 mm")),
])
revolution = body2.newObject("PartDesign::Revolution", "Revolution")
revolution.Profile = sketch2
revolution.ReferenceAxis = (sketch2, ["V_Axis"])
revolution.Angle = 360

# Sketch on YZ plane
sketch3 = body2.newObject("Sketcher::SketchObject", "Sketch002")
sketch3.AttachmentSupport = (doc.getObject("YZ_Plane001"), [""])
sketch3.MapMode = "FlatFace"
sketch3.addGeometry([
    Part.Circle(Vector(0, -84, 0), Vector(0, 0, 1), 11),
    Part.ArcOfCircle(Part.Circle(Vector(0, -84, 0), Vector(0, 0, 1), 22), math.radians(-104), math.radians(-76)),
    Part.ArcOfCircle(Part.Circle(Vector(-15, -146, 0), Vector(0, 0, 1), 42), math.radians(76), math.radians(292)),
    Part.ArcOfCircle(Part.Circle(Vector(15, -146, 0), Vector(0, 0, 1), 42), math.radians(-112), math.radians(104)),
], False)
sketch3.addConstraint([
    Sketcher.Constraint("Tangent", 1, 1, 2, 1),
    Sketcher.Constraint("Coincident", 2, 2, 3, 1),
    Sketcher.Constraint("Tangent", 3, 2, 1, 2),
    Sketcher.Constraint("Coincident", 1, 3, 0, 3),
    Sketcher.Constraint("Equal", 2, 3),
    Sketcher.Constraint("Symmetric", 2, 3, 3, 3, -2),
    Sketcher.Constraint("Diameter", 0, Q("22 mm")),
    Sketcher.Constraint("Radius", 1, Q("22.117206 mm")),
    Sketcher.Constraint("Radius", 2, Q("41.800484 mm")),
    Sketcher.Constraint("DistanceX", 2, 3, -1, 1, Q("15.494909 mm")),
    Sketcher.Constraint("DistanceY", 2, 3, -1, 1, Q("146.467522 mm")),
])
pocket1 = body2.newObject("PartDesign::Pocket", "Pocket")
pocket1.Profile = sketch3
pocket1.Type = "ThroughAll"
pocket1.Midplane = True

# Sketch on XZ plane
sketch4 = body2.newObject("Sketcher::SketchObject", "Sketch003")
sketch4.AttachmentSupport = (doc.getObject("XZ_Plane001"), [""])
sketch4.MapMode = "FlatFace"
add_polygon(sketch4, [(-43, -77), (-43, -94), (-37, -94), (-37, -77)])  # lines 0-3
add_polygon(sketch4, [(37, -75), (37, -93), (43, -93), (43, -75)])  # lines 4-7
sketch4.addConstraint([
    Sketcher.Constraint("Vertical", 0),
    Sketcher.Constraint("Horizontal", 1),
    Sketcher.Constraint("Vertical", 2),
    Sketcher.Constraint("Horizontal", 3),
    Sketcher.Constraint("Vertical", 4),
    Sketcher.Constraint("Horizontal", 5),
    Sketcher.Constraint("Vertical", 6),
    Sketcher.Constraint("Horizontal", 7),
    Sketcher.Constraint("Equal", 3, 5),
    Sketcher.Constraint("DistanceX", 1, 1, 1, 2, Q("6 mm")),
    Sketcher.Constraint("DistanceY", 4, 2, 4, 1, Q("18 mm")),
    Sketcher.Constraint("DistanceX", 0, 2, -1, 1, Q("43 mm")),
    Sketcher.Constraint("DistanceX", -1, 1, 4, 2, Q("37 mm")),
    Sketcher.Constraint("DistanceY", 0, 2, 0, 1, Q("17.437498 mm")),
    Sketcher.Constraint("DistanceY", 0, 2, -1, 1, Q("93.959265 mm")),
    Sketcher.Constraint("DistanceY", 4, 2, -1, 1, Q("93.456402 mm")),
])
pocket2 = body2.newObject("PartDesign::Pocket", "Pocket001")
pocket2.Profile = sketch4
pocket2.Type = "ThroughAll"
pocket2.Midplane = True

# Sketch on XY plane
sketch5 = body2.newObject("Sketcher::SketchObject", "Sketch004")
sketch5.AttachmentSupport = (doc.getObject("XY_Plane001"), [""])
sketch5.MapMode = "FlatFace"
sketch5.AttachmentOffset = App.Placement(Vector(0, 0, -67), App.Rotation())
sketch5.addGeometry([
    Part.ArcOfCircle(Part.Circle(Vector(24.1, 25.3, 0), Vector(0, 0, 1), 4), math.radians(0), math.radians(46)),  # 0
    Part.ArcOfCircle(Part.Circle(Vector(0, 0, 0), Vector(0, 0, 1), 39), math.radians(46), math.radians(134)),  # 1
    Part.ArcOfCircle(Part.Circle(Vector(-24.1, 25.3, 0), Vector(0, 0, 1), 4), math.radians(134), math.radians(180)),  # 2
    Part.LineSegment(Vector(-28.1, 25.3, 0), Vector(-28.1, 16, 0)),  # 3
    Part.ArcOfCircle(Part.Circle(Vector(-24.1, 16, 0), Vector(0, 0, 1), 4), math.radians(180), math.radians(270)),  # 4
    Part.LineSegment(Vector(-24.1, 12, 0), Vector(-20, 12, 0)),  # 5
    Part.ArcOfCircle(Part.Circle(Vector(-20, 8, 0), Vector(0, 0, 1), 4), math.radians(0), math.radians(90)),  # 6
    Part.LineSegment(Vector(-16, 8, 0), Vector(-16, -8, 0)),  # 7
    Part.ArcOfCircle(Part.Circle(Vector(-20, -8, 0), Vector(0, 0, 1), 4), math.radians(-90), math.radians(0)),  # 8
    Part.LineSegment(Vector(-20, -12, 0), Vector(-24.1, -12, 0)),  # 9
    Part.ArcOfCircle(Part.Circle(Vector(-24.1, -16, 0), Vector(0, 0, 1), 4), math.radians(90), math.radians(180)),  # 10
    Part.LineSegment(Vector(-28.1, -16, 0), Vector(-28.1, -25.3, 0)),  # 11
    Part.ArcOfCircle(Part.Circle(Vector(-24.1, -25.3, 0), Vector(0, 0, 1), 4), math.radians(180), math.radians(226)),  # 12
    Part.ArcOfCircle(Part.Circle(Vector(0, 0, 0), Vector(0, 0, 1), 39), math.radians(-134), math.radians(-46)),  # 13
    Part.ArcOfCircle(Part.Circle(Vector(24.1, -25.3, 0), Vector(0, 0, 1), 4), math.radians(-46), math.radians(0)),  # 14
    Part.LineSegment(Vector(28.1, -25.3, 0), Vector(28.1, -16, 0)),  # 15
    Part.ArcOfCircle(Part.Circle(Vector(24.1, -16, 0), Vector(0, 0, 1), 4), math.radians(0), math.radians(90)),  # 16
    Part.LineSegment(Vector(24.1, -12, 0), Vector(20, -12, 0)),  # 17
    Part.ArcOfCircle(Part.Circle(Vector(20, -8, 0), Vector(0, 0, 1), 4), math.radians(180), math.radians(270)),  # 18
    Part.LineSegment(Vector(16, -8, 0), Vector(16, 8, 0)),  # 19
    Part.ArcOfCircle(Part.Circle(Vector(20, 8, 0), Vector(0, 0, 1), 4), math.radians(90), math.radians(180)),  # 20
    Part.LineSegment(Vector(20, 12, 0), Vector(24.1, 12, 0)),  # 21
    Part.ArcOfCircle(Part.Circle(Vector(24.1, 16, 0), Vector(0, 0, 1), 4), math.radians(-90), math.radians(0)),  # 22
    Part.LineSegment(Vector(28.1, 16, 0), Vector(28.1, 25.3, 0)),  # 23
], False)
sketch5.addConstraint([
    Sketcher.Constraint("Tangent", 0, 2, 1, 1),
    Sketcher.Constraint("Tangent", 1, 2, 2, 1),
    Sketcher.Constraint("Tangent", 2, 2, 3, 1),
    Sketcher.Constraint("Tangent", 3, 2, 4, 1),
    Sketcher.Constraint("Tangent", 4, 2, 5, 1),
    Sketcher.Constraint("Tangent", 5, 2, 6, 2),
    Sketcher.Constraint("Tangent", 6, 1, 7, 1),
    Sketcher.Constraint("Tangent", 7, 2, 8, 2),
    Sketcher.Constraint("Tangent", 8, 1, 9, 1),
    Sketcher.Constraint("Tangent", 9, 2, 10, 1),
    Sketcher.Constraint("Tangent", 10, 2, 11, 1),
    Sketcher.Constraint("Tangent", 11, 2, 12, 1),
    Sketcher.Constraint("Tangent", 12, 2, 13, 1),
    Sketcher.Constraint("Tangent", 13, 2, 14, 1),
    Sketcher.Constraint("Tangent", 14, 2, 15, 1),
    Sketcher.Constraint("Tangent", 15, 2, 16, 1),
    Sketcher.Constraint("Tangent", 16, 2, 17, 1),
    Sketcher.Constraint("Tangent", 17, 2, 18, 2),
    Sketcher.Constraint("Tangent", 18, 1, 19, 1),
    Sketcher.Constraint("Tangent", 19, 2, 20, 2),
    Sketcher.Constraint("Tangent", 20, 1, 21, 1),
    Sketcher.Constraint("Tangent", 21, 2, 22, 1),
    Sketcher.Constraint("Tangent", 22, 2, 23, 1),
    Sketcher.Constraint("Tangent", 23, 2, 0, 1),
    Sketcher.Constraint("Vertical", 3),
    Sketcher.Constraint("Horizontal", 5),
    Sketcher.Constraint("Vertical", 7),
    Sketcher.Constraint("Horizontal", 9),
    Sketcher.Constraint("Vertical", 11),
    Sketcher.Constraint("Vertical", 15),
    Sketcher.Constraint("Horizontal", 17),
    Sketcher.Constraint("Vertical", 19),
    Sketcher.Constraint("Horizontal", 21),
    Sketcher.Constraint("Vertical", 23),
    Sketcher.Constraint("Coincident", 1, 3, -1, 1),
    Sketcher.Constraint("Coincident", 13, 3, -1, 1),
    Sketcher.Constraint("Equal", 0, 2),
    Sketcher.Constraint("Equal", 2, 4),
    Sketcher.Constraint("Equal", 4, 6),
    Sketcher.Constraint("Equal", 6, 8),
    Sketcher.Constraint("Equal", 8, 10),
    Sketcher.Constraint("Equal", 10, 12),
    Sketcher.Constraint("Equal", 1, 13),
    Sketcher.Constraint("Equal", 12, 14),
    Sketcher.Constraint("Equal", 14, 16),
    Sketcher.Constraint("Equal", 16, 18),
    Sketcher.Constraint("Equal", 18, 20),
    Sketcher.Constraint("Equal", 20, 22),
    Sketcher.Constraint("Symmetric", 4, 3, 16, 3, -1, 1),
    Sketcher.Constraint("Symmetric", 8, 3, 20, 3, -1, 1),
    Sketcher.Constraint("Symmetric", 10, 3, 16, 3, -2),
    Sketcher.Constraint("Horizontal", 0, 3, 2, 3),
    Sketcher.Constraint("Radius", 0, Q("4 mm")),
    Sketcher.Constraint("Radius", 1, Q("39 mm")),
    Sketcher.Constraint("DistanceY", 7, 2, 7, 1, Q("16 mm")),
    Sketcher.Constraint("DistanceX", 6, 3, -1, 1, Q("20 mm")),
    Sketcher.Constraint("DistanceX", 5, 1, 5, 2, Q("4.149037 mm")),
])
pocket3 = body2.newObject("PartDesign::Pocket", "Pocket002")
pocket3.Profile = sketch5
pocket3.Length = 75
body3 = doc.addObject("PartDesign::Body", "Body002")

# Sketch on YZ plane
sketch6 = body3.newObject("Sketcher::SketchObject", "Sketch005")
sketch6.AttachmentSupport = (doc.getObject("YZ_Plane002"), [""])
sketch6.MapMode = "FlatFace"
sketch6.AttachmentOffset = App.Placement(Vector(0, 0, -37), App.Rotation())
sketch6.addGeometry([
    Part.ArcOfCircle(Part.Circle(Vector(0, -84, 0), Vector(0, 0, 1), 11), math.radians(180), math.radians(240)),
    Part.ArcOfCircle(Part.Circle(Vector(0, -84, 0), Vector(0, 0, 1), 11), math.radians(-120), math.radians(180)),
], False)
sketch6.addConstraint([
    Sketcher.Constraint("Tangent", 0, 1, 1, 2),
    Sketcher.Constraint("Coincident", 1, 1, 0, 2),
    Sketcher.Constraint("PointOnObject", 0, 3, -2),
    Sketcher.Constraint("Horizontal", 1, 3, 0, 1),
    Sketcher.Constraint("Radius", 0, Q("11 mm")),
    Sketcher.Constraint("DistanceX", 1, 1, -1, 1, Q("5.540361 mm")),
    Sketcher.Constraint("DistanceY", 0, 3, -1, 1, Q("84.456402 mm")),
])
pad2 = body3.newObject("PartDesign::Pad", "Pad001")
pad2.Profile = sketch6
pad2.Length = 74

doc.recompute()
